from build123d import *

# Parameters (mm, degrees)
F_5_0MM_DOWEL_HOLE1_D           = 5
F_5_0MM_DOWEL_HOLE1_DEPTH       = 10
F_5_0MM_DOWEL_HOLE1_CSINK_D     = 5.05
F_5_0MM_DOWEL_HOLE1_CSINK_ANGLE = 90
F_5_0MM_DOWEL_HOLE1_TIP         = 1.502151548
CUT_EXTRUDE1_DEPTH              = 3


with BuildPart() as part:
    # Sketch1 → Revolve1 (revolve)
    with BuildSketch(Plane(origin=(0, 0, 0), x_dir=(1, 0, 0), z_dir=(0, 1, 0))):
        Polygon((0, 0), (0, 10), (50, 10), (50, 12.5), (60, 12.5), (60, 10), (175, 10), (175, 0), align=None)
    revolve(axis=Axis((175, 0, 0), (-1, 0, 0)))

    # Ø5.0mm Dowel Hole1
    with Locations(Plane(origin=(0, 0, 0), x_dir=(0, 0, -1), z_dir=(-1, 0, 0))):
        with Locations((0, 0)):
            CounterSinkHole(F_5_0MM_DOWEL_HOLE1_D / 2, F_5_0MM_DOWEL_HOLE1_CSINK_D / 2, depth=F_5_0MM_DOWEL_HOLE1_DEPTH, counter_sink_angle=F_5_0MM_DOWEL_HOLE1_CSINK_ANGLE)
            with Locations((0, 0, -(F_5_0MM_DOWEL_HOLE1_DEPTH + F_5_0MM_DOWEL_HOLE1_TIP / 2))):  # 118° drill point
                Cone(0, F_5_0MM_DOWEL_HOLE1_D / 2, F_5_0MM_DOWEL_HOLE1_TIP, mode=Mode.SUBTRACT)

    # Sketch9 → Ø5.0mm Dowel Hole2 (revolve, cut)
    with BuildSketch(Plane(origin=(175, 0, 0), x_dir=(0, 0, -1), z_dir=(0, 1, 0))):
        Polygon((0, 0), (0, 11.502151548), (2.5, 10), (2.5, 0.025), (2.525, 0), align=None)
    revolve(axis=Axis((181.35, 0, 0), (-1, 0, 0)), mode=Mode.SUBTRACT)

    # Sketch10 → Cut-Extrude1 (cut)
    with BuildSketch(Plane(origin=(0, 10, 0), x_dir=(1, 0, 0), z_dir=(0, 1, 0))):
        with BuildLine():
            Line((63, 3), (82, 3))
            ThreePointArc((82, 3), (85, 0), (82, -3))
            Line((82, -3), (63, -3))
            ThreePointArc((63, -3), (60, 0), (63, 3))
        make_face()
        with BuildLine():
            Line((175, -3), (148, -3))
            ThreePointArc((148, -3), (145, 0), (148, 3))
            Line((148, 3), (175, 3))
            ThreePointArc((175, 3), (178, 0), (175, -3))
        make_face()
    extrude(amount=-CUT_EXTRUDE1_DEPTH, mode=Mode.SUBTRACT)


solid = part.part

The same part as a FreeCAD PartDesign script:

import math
import FreeCAD as App
import Part
import Sketcher
from FreeCAD import Vector
Q = App.Units.Quantity

doc = App.newDocument("Part")
body = doc.addObject("PartDesign::Body", "Body")

# Sketch on XZ plane
sketch1 = body.newObject("Sketcher::SketchObject", "Sketch")
sketch1.AttachmentSupport = (doc.getObject("XZ_Plane"), [""])
sketch1.MapMode = "FlatFace"
sketch1.addGeometry(Part.LineSegment(Vector(0, -10, 0), Vector(0, 0, 0)), False)
sketch1.addGeometry(Part.LineSegment(Vector(0, 0, 0), Vector(175, 0, 0)), False)
sketch1.addGeometry(Part.LineSegment(Vector(175, 0, 0), Vector(175, -10, 0)), False)
sketch1.addGeometry(Part.LineSegment(Vector(175, -10, 0), Vector(60, -10, 0)), False)
sketch1.addGeometry(Part.LineSegment(Vector(60, -10, 0), Vector(60, -12.5, 0)), False)
sketch1.addGeometry(Part.LineSegment(Vector(60, -12.5, 0), Vector(50, -12.5, 0)), False)
sketch1.addGeometry(Part.LineSegment(Vector(50, -12.5, 0), Vector(50, -10, 0)), False)
sketch1.addGeometry(Part.LineSegment(Vector(50, -10, 0), Vector(0, -10, 0)), False)
sketch1.addConstraint(Sketcher.Constraint("Coincident", 0, 2, 1, 1))
sketch1.addConstraint(Sketcher.Constraint("Coincident", 1, 2, 2, 1))
sketch1.addConstraint(Sketcher.Constraint("Coincident", 2, 2, 3, 1))
sketch1.addConstraint(Sketcher.Constraint("Coincident", 3, 2, 4, 1))
sketch1.addConstraint(Sketcher.Constraint("Coincident", 4, 2, 5, 1))
sketch1.addConstraint(Sketcher.Constraint("Coincident", 5, 2, 6, 1))
sketch1.addConstraint(Sketcher.Constraint("Coincident", 6, 2, 7, 1))
sketch1.addConstraint(Sketcher.Constraint("Coincident", 7, 2, 0, 1))
sketch1.addConstraint(Sketcher.Constraint("Vertical", 0))
sketch1.addConstraint(Sketcher.Constraint("Horizontal", 1))
sketch1.addConstraint(Sketcher.Constraint("Vertical", 2))
sketch1.addConstraint(Sketcher.Constraint("Horizontal", 3))
sketch1.addConstraint(Sketcher.Constraint("Vertical", 4))
sketch1.addConstraint(Sketcher.Constraint("Horizontal", 5))
sketch1.addConstraint(Sketcher.Constraint("Vertical", 6))
sketch1.addConstraint(Sketcher.Constraint("Horizontal", 7))
sketch1.addConstraint(Sketcher.Constraint("Coincident", 0, 2, -1, 1))
sketch1.addConstraint(Sketcher.Constraint("Horizontal", 3, 2, 6, 2))
sketch1.addConstraint(Sketcher.Constraint("Equal", 5, 0))
sketch1.addConstraint(Sketcher.Constraint("DistanceX", 1, 1, 1, 2, 175.0))
sketch1.addConstraint(Sketcher.Constraint("DistanceX", 3, 2, 3, 1, 115.0))
sketch1.addConstraint(Sketcher.Constraint("DistanceX", 5, 2, 5, 1, 10.0))
sketch1.addConstraint(Sketcher.Constraint("DistanceY", 4, 2, 4, 1, 2.5))
revolution = body.newObject("PartDesign::Revolution", "Revolution")
revolution.Profile = sketch1
revolution.ReferenceAxis = (sketch1, ["H_Axis"])
revolution.Angle = 360

# Sketch on YZ plane
sketch2 = body.newObject("Sketcher::SketchObject", "Sketch001")
sketch2.AttachmentSupport = (doc.getObject("YZ_Plane"), [""])
sketch2.MapMode = "FlatFace"
sketch2.addGeometry(Part.Circle(Vector(0, 0, 0), Vector(0, 0, 1), 2.5), False)
sketch2.addConstraint(Sketcher.Constraint("Coincident", 0, 3, -1, 1))
sketch2.addConstraint(Sketcher.Constraint("Diameter", 0, 5.0))
doc.recompute()
hole = body.newObject("PartDesign::Hole", "Hole")
hole.Profile = sketch2
hole.ThreadType = "None"
hole.Diameter = 5
hole.DepthType = "Dimension"
hole.Depth = 10
hole.DrillPoint = "Angled"
hole.DrillPointAngle = 118
hole.HoleCutType = "Countersink"
hole.HoleCutDiameter = 5.05
hole.HoleCutCountersinkAngle = 90
hole.Reversed = True

# Sketch on XZ plane
sketch3 = body.newObject("Sketcher::SketchObject", "Sketch002")
sketch3.AttachmentSupport = (doc.getObject("XZ_Plane"), [""])
sketch3.MapMode = "FlatFace"
sketch3.addGeometry(Part.LineSegment(Vector(163.497848, 0, 0), Vector(175, 0, 0)), False)
sketch3.addGeometry(Part.LineSegment(Vector(175, 0, 0), Vector(175, -2.525, 0)), False)
sketch3.addGeometry(Part.LineSegment(Vector(175, -2.525, 0), Vector(174.975, -2.5, 0)), False)
sketch3.addGeometry(Part.LineSegment(Vector(174.975, -2.5, 0), Vector(165, -2.5, 0)), False)
sketch3.addGeometry(Part.LineSegment(Vector(165, -2.5, 0), Vector(163.497848, 0, 0)), False)
sketch3.addConstraint(Sketcher.Constraint("Coincident", 0, 2, 1, 1))
sketch3.addConstraint(Sketcher.Constraint("Coincident", 1, 2, 2, 1))
sketch3.addConstraint(Sketcher.Constraint("Coincident", 2, 2, 3, 1))
sketch3.addConstraint(Sketcher.Constraint("Coincident", 3, 2, 4, 1))
sketch3.addConstraint(Sketcher.Constraint("Coincident", 4, 2, 0, 1))
sketch3.addConstraint(Sketcher.Constraint("Horizontal", 0))
sketch3.addConstraint(Sketcher.Constraint("Vertical", 1))
sketch3.addConstraint(Sketcher.Constraint("Horizontal", 3))
sketch3.addConstraint(Sketcher.Constraint("PointOnObject", 0, 2, -1))
sketch3.addConstraint(Sketcher.Constraint("Angle", 2, Q("135 deg")))
sketch3.addConstraint(Sketcher.Constraint("Angle", 4, Q("121 deg")))
sketch3.addConstraint(Sketcher.Constraint("DistanceX", -1, 1, 0, 2, 175.0))
sketch3.addConstraint(Sketcher.Constraint("DistanceX", -1, 1, 3, 2, 165.0))
sketch3.addConstraint(Sketcher.Constraint("DistanceY", 2, 2, -1, 1, 2.5))
sketch3.addConstraint(Sketcher.Constraint("DistanceX", 3, 2, 3, 1, 9.975))
groove = body.newObject("PartDesign::Groove", "Groove")
groove.Profile = sketch3
groove.ReferenceAxis = (sketch3, ["H_Axis"])
groove.Angle = 360

# Sketch on XZ plane
sketch4 = body.newObject("Sketcher::SketchObject", "Sketch003")
sketch4.AttachmentSupport = (doc.getObject("XZ_Plane"), [""])
sketch4.MapMode = "FlatFace"
sketch4.AttachmentOffset = App.Placement(Vector(0, 0, -10), App.Rotation())
sketch4.addGeometry(Part.LineSegment(Vector(82, -3, 0), Vector(63, -3, 0)), False)
sketch4.addGeometry(Part.ArcOfCircle(Part.Circle(Vector(63, 0, 0), Vector(0, 0, 1), 3), math.radians(90), math.radians(270)), False)
sketch4.addGeometry(Part.LineSegment(Vector(63, 3, 0), Vector(82, 3, 0)), False)
sketch4.addGeometry(Part.ArcOfCircle(Part.Circle(Vector(82, 0, 0), Vector(0, 0, 1), 3), math.radians(-90), math.radians(90)), False)
sketch4.addGeometry(Part.LineSegment(Vector(148, 3, 0), Vector(175, 3, 0)), False)
sketch4.addGeometry(Part.ArcOfCircle(Part.Circle(Vector(175, 0, 0), Vector(0, 0, 1), 3), math.radians(-90), math.radians(90)), False)
sketch4.addGeometry(Part.LineSegment(Vector(175, -3, 0), Vector(148, -3, 0)), False)
sketch4.addGeometry(Part.ArcOfCircle(Part.Circle(Vector(148, 0, 0), Vector(0, 0, 1), 3), math.radians(90), math.radians(270)), False)
sketch4.addConstraint(Sketcher.Constraint("Tangent", 0, 2, 1, 2))
sketch4.addConstraint(Sketcher.Constraint("Tangent", 1, 1, 2, 1))
sketch4.addConstraint(Sketcher.Constraint("Tangent", 2, 2, 3, 2))
sketch4.addConstraint(Sketcher.Constraint("Tangent", 3, 1, 0, 1))
sketch4.addConstraint(Sketcher.Constraint("Tangent", 4, 2, 5, 2))
sketch4.addConstraint(Sketcher.Constraint("Tangent", 5, 1, 6, 1))
sketch4.addConstraint(Sketcher.Constraint("Tangent", 6, 2, 7, 2))
sketch4.addConstraint(Sketcher.Constraint("Tangent", 7, 1, 4, 1))
sketch4.addConstraint(Sketcher.Constraint("Horizontal", 0))
sketch4.addConstraint(Sketcher.Constraint("Horizontal", 2))
sketch4.addConstraint(Sketcher.Constraint("Horizontal", 4))
sketch4.addConstraint(Sketcher.Constraint("Horizontal", 6))
sketch4.addConstraint(Sketcher.Constraint("Equal", 3, 5))
sketch4.addConstraint(Sketcher.Constraint("PointOnObject", 1, 3, -1))
sketch4.addConstraint(Sketcher.Constraint("PointOnObject", 5, 3, -1))
sketch4.addConstraint(Sketcher.Constraint("Radius", 1, 3.0))
sketch4.addConstraint(Sketcher.Constraint("DistanceX", 0, 2, 0, 1, 19.0))
sketch4.addConstraint(Sketcher.Constraint("DistanceX", 4, 1, 4, 2, 27.0))
sketch4.addConstraint(Sketcher.Constraint("DistanceX", -1, 1, 1, 3, 63.0))
sketch4.addConstraint(Sketcher.Constraint("DistanceX", -1, 1, 5, 3, 175.0))
pocket1 = body.newObject("PartDesign::Pocket", "Pocket")
pocket1.Profile = sketch4
pocket1.Length = 3
pocket1.Reversed = True

doc.recompute()
